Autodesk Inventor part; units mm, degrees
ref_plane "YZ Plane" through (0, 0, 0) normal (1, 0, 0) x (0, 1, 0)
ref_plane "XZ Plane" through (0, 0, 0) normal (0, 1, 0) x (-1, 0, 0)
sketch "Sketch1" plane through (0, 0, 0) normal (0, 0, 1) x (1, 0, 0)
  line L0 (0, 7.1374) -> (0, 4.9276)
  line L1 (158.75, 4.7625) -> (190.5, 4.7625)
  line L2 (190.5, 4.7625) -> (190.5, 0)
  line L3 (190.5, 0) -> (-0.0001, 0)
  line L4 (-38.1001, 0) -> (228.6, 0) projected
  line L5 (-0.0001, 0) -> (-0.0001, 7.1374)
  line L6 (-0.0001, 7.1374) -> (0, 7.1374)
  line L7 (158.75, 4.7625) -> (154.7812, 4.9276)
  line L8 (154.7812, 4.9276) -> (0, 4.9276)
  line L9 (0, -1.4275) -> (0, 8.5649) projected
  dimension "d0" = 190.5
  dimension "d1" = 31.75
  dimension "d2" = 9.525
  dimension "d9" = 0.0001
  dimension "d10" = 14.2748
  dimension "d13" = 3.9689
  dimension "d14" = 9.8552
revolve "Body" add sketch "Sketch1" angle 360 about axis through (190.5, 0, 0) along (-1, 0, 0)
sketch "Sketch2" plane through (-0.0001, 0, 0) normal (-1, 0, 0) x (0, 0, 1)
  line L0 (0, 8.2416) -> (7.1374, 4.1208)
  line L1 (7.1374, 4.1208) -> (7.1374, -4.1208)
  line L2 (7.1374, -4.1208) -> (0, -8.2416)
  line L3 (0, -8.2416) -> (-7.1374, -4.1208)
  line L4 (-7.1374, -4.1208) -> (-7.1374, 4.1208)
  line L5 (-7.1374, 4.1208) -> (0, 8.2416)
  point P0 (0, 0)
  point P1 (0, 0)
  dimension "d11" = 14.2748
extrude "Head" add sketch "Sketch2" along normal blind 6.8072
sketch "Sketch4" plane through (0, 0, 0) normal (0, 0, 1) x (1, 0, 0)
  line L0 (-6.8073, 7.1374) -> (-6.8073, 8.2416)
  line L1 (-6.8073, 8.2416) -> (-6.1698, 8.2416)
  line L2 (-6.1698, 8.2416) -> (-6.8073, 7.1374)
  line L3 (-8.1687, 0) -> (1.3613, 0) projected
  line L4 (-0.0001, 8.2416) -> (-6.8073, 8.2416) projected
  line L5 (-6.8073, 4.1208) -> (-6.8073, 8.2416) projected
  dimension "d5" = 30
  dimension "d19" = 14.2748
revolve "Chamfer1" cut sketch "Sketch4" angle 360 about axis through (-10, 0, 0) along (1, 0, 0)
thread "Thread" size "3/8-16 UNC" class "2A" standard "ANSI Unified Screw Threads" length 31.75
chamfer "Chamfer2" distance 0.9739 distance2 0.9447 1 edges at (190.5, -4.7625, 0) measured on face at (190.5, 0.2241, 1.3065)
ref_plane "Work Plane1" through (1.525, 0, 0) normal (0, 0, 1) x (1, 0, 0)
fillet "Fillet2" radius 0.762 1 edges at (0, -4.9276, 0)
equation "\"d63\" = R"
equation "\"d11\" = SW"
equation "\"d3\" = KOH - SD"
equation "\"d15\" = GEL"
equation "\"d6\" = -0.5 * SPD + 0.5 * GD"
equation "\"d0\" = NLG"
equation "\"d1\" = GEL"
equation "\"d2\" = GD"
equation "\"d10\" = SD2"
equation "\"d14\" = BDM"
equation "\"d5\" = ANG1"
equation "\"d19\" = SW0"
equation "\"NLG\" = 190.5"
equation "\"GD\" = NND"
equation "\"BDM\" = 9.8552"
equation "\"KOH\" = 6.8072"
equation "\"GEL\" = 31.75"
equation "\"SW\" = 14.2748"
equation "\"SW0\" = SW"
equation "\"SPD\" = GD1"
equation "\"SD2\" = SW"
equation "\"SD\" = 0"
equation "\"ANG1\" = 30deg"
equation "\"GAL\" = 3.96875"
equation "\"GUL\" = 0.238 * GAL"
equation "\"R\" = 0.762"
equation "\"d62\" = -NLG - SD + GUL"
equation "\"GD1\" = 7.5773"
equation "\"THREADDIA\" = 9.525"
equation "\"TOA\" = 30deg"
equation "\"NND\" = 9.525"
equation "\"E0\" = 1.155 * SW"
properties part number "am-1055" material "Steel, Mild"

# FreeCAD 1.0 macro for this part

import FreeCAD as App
import Part
import Sketcher

V = App.Vector
Q = App.Units.Quantity


def edges_at(feature, points):
    """Names of the edges that pass closest to the given points."""
    edges = feature.Shape.Edges
    near = lambda p: min(range(len(edges)), key=lambda i: edges[i].distToShape(Part.Vertex(*p))[0])
    return sorted({f"Edge{near(p) + 1}" for p in points})


def add_polygon(sketch, points):
    """Adds a closed chain of lines whose ends are joined by coincident constraints."""
    first, n = sketch.GeometryCount, len(points)
    for a, b in zip(points, points[1:] + points[:1]):
        sketch.addGeometry(Part.LineSegment(App.Vector(*a, 0), App.Vector(*b, 0)), False)
    for i in range(n):
        sketch.addConstraint(Sketcher.Constraint("Coincident", first + i, 2, first + (i + 1) % n, 1))

doc = App.newDocument("Part")
params = doc.addObject("Spreadsheet::Sheet", "Params")
for row, (alias, value) in enumerate([
    ("sketch1_width", "7.5 in"),
    ("sketch1_width2", "1.25 in"),
    ("sketch1_height", "0.194 in"),
    ("sketch1_height2", "0.1875 in"),
    ("revolution_angle", "360 deg"),
    ("pad1_length", "0.268 in"),
    ("groove_angle", "360 deg"),
    ("chamfer_size", "0.9739 mm"),
    ("chamfer_size2", "0.0371929 in"),
    ("fillet_radius", "0.03 in"),
], start=1):
    params.set(f"A{row}", alias)
    params.set(f"B{row}", "=" + value)
    params.setAlias(f"B{row}", alias)

body = doc.addObject("PartDesign::Body", "Body")

# Sketch on XY plane
sketch1 = body.newObject("Sketcher::SketchObject", "Sketch")
sketch1.AttachmentSupport = (doc.getObject("XY_Plane"), [""])
sketch1.MapMode = "FlatFace"
add_polygon(sketch1, [(190.5, 4.8), (158.8, 4.8), (154.8, 4.9), (0, 4.9), (0, 0), (190.5, 0)])  # lines 0-5
sketch1.addConstraint(Sketcher.Constraint("Horizontal", 0))
sketch1.addConstraint(Sketcher.Constraint("Horizontal", 2))
sketch1.addConstraint(Sketcher.Constraint("Vertical", 3))
sketch1.addConstraint(Sketcher.Constraint("Horizontal", 4))
sketch1.addConstraint(Sketcher.Constraint("Vertical", 5))
sketch1.addConstraint(Sketcher.Constraint("Coincident", 3, 2, -1, 1))
sketch1.addConstraint(Sketcher.Constraint("DistanceX", 4, 1, 4, 2, Q("7.5 in")))
sketch1.addConstraint(Sketcher.Constraint("DistanceX", 0, 2, 0, 1, Q("1.25 in")))
sketch1.addConstraint(Sketcher.Constraint("DistanceX", 1, 2, 0, 2, Q("0.156252 in")))
sketch1.addConstraint(Sketcher.Constraint("DistanceY", 3, 2, 3, 1, Q("0.194 in")))
sketch1.addConstraint(Sketcher.Constraint("DistanceY", 5, 1, 5, 2, Q("0.1875 in")))
sketch1.setExpression("Constraints[12]", "Params.sketch1_width")
sketch1.setExpression("Constraints[13]", "Params.sketch1_width2")
sketch1.setExpression("Constraints[15]", "Params.sketch1_height")
sketch1.setExpression("Constraints[16]", "Params.sketch1_height2")
revolution = body.newObject("PartDesign::Revolution", "Revolution")
revolution.Profile = sketch1
revolution.ReferenceAxis = (sketch1, ["H_Axis"])
revolution.setExpression("Angle", "Params.revolution_angle")

# Sketch on YZ plane
sketch2 = body.newObject("Sketcher::SketchObject", "Sketch001")
sketch2.AttachmentSupport = (doc.getObject("YZ_Plane"), [""])
sketch2.MapMode = "FlatFace"
sketch2.AttachmentOffset = App.Placement(V(0, 0, -0.0000039 * 25.4), App.Rotation())
add_polygon(sketch2, [(4, 7), (8, 0), (4, -7), (-4, -7), (-8, 0), (-4, 7)])  # lines 0-5
sketch2.addConstraint(Sketcher.Constraint("Horizontal", 2))
sketch2.addConstraint(Sketcher.Constraint("Horizontal", 5))
sketch2.addConstraint(Sketcher.Constraint("Symmetric", 0, 2, 3, 2, -1, 1))
sketch2.addConstraint(Sketcher.Constraint("Symmetric", 1, 2, 4, 2, -1, 1))
sketch2.addConstraint(Sketcher.Constraint("PointOnObject", 0, 2, -1))
sketch2.addConstraint(Sketcher.Constraint("Parallel", 0, 3))
sketch2.addConstraint(Sketcher.Constraint("Vertical", 2, 2, 4, 2))
sketch2.addConstraint(Sketcher.Constraint("Angle", 0, Q("-59.9999 deg")))
sketch2.addConstraint(Sketcher.Constraint("DistanceY", 2, 2, 4, 2, Q("0.562 in")))
sketch2.addConstraint(Sketcher.Constraint("DistanceX", 2, 2, 2, 1, 8.2416))
pad1 = body.newObject("PartDesign::Pad", "Pad")
pad1.Profile = sketch2
pad1.setExpression("Length", "Params.pad1_length")
pad1.Reversed = True

# Sketch on XY plane
sketch3 = body.newObject("Sketcher::SketchObject", "Sketch002")
sketch3.AttachmentSupport = (doc.getObject("XY_Plane"), [""])
sketch3.MapMode = "FlatFace"
add_polygon(sketch3, [(-6.8, 8.2), (-6.8, 7.1), (-6.2, 8.2)])  # lines 0-2
sketch3.addConstraint(Sketcher.Constraint("Vertical", 0))
sketch3.addConstraint(Sketcher.Constraint("Horizontal", 2))
sketch3.addConstraint(Sketcher.Constraint("Angle", 1, Q("60.0004 deg")))
sketch3.addConstraint(Sketcher.Constraint("DistanceX", 2, 2, 2, 1, Q("0.0251 in")))
sketch3.addConstraint(Sketcher.Constraint("DistanceX", 0, 2, -1, 1, Q("0.268 in")))
sketch3.addConstraint(Sketcher.Constraint("DistanceY", -1, 1, 0, 2, Q("0.281 in")))
groove = body.newObject("PartDesign::Groove", "Groove")
groove.Profile = sketch3
groove.ReferenceAxis = (sketch3, ["H_Axis"])
groove.setExpression("Angle", "Params.groove_angle")
doc.recompute()

chamfer = body.newObject("PartDesign::Chamfer", "Chamfer")
chamfer.Base = (groove, edges_at(groove, [(190.5, -4.763, 0)]))
chamfer.ChamferType = "Two distances"
chamfer.setExpression("Size", "Params.chamfer_size")
chamfer.setExpression("Size2", "Params.chamfer_size2")
doc.recompute()

fillet = body.newObject("PartDesign::Fillet", "Fillet")
fillet.Base = (chamfer, edges_at(chamfer, [(0, -4.928, 0)]))
fillet.setExpression("Radius", "Params.fillet_radius")

doc.recompute()
